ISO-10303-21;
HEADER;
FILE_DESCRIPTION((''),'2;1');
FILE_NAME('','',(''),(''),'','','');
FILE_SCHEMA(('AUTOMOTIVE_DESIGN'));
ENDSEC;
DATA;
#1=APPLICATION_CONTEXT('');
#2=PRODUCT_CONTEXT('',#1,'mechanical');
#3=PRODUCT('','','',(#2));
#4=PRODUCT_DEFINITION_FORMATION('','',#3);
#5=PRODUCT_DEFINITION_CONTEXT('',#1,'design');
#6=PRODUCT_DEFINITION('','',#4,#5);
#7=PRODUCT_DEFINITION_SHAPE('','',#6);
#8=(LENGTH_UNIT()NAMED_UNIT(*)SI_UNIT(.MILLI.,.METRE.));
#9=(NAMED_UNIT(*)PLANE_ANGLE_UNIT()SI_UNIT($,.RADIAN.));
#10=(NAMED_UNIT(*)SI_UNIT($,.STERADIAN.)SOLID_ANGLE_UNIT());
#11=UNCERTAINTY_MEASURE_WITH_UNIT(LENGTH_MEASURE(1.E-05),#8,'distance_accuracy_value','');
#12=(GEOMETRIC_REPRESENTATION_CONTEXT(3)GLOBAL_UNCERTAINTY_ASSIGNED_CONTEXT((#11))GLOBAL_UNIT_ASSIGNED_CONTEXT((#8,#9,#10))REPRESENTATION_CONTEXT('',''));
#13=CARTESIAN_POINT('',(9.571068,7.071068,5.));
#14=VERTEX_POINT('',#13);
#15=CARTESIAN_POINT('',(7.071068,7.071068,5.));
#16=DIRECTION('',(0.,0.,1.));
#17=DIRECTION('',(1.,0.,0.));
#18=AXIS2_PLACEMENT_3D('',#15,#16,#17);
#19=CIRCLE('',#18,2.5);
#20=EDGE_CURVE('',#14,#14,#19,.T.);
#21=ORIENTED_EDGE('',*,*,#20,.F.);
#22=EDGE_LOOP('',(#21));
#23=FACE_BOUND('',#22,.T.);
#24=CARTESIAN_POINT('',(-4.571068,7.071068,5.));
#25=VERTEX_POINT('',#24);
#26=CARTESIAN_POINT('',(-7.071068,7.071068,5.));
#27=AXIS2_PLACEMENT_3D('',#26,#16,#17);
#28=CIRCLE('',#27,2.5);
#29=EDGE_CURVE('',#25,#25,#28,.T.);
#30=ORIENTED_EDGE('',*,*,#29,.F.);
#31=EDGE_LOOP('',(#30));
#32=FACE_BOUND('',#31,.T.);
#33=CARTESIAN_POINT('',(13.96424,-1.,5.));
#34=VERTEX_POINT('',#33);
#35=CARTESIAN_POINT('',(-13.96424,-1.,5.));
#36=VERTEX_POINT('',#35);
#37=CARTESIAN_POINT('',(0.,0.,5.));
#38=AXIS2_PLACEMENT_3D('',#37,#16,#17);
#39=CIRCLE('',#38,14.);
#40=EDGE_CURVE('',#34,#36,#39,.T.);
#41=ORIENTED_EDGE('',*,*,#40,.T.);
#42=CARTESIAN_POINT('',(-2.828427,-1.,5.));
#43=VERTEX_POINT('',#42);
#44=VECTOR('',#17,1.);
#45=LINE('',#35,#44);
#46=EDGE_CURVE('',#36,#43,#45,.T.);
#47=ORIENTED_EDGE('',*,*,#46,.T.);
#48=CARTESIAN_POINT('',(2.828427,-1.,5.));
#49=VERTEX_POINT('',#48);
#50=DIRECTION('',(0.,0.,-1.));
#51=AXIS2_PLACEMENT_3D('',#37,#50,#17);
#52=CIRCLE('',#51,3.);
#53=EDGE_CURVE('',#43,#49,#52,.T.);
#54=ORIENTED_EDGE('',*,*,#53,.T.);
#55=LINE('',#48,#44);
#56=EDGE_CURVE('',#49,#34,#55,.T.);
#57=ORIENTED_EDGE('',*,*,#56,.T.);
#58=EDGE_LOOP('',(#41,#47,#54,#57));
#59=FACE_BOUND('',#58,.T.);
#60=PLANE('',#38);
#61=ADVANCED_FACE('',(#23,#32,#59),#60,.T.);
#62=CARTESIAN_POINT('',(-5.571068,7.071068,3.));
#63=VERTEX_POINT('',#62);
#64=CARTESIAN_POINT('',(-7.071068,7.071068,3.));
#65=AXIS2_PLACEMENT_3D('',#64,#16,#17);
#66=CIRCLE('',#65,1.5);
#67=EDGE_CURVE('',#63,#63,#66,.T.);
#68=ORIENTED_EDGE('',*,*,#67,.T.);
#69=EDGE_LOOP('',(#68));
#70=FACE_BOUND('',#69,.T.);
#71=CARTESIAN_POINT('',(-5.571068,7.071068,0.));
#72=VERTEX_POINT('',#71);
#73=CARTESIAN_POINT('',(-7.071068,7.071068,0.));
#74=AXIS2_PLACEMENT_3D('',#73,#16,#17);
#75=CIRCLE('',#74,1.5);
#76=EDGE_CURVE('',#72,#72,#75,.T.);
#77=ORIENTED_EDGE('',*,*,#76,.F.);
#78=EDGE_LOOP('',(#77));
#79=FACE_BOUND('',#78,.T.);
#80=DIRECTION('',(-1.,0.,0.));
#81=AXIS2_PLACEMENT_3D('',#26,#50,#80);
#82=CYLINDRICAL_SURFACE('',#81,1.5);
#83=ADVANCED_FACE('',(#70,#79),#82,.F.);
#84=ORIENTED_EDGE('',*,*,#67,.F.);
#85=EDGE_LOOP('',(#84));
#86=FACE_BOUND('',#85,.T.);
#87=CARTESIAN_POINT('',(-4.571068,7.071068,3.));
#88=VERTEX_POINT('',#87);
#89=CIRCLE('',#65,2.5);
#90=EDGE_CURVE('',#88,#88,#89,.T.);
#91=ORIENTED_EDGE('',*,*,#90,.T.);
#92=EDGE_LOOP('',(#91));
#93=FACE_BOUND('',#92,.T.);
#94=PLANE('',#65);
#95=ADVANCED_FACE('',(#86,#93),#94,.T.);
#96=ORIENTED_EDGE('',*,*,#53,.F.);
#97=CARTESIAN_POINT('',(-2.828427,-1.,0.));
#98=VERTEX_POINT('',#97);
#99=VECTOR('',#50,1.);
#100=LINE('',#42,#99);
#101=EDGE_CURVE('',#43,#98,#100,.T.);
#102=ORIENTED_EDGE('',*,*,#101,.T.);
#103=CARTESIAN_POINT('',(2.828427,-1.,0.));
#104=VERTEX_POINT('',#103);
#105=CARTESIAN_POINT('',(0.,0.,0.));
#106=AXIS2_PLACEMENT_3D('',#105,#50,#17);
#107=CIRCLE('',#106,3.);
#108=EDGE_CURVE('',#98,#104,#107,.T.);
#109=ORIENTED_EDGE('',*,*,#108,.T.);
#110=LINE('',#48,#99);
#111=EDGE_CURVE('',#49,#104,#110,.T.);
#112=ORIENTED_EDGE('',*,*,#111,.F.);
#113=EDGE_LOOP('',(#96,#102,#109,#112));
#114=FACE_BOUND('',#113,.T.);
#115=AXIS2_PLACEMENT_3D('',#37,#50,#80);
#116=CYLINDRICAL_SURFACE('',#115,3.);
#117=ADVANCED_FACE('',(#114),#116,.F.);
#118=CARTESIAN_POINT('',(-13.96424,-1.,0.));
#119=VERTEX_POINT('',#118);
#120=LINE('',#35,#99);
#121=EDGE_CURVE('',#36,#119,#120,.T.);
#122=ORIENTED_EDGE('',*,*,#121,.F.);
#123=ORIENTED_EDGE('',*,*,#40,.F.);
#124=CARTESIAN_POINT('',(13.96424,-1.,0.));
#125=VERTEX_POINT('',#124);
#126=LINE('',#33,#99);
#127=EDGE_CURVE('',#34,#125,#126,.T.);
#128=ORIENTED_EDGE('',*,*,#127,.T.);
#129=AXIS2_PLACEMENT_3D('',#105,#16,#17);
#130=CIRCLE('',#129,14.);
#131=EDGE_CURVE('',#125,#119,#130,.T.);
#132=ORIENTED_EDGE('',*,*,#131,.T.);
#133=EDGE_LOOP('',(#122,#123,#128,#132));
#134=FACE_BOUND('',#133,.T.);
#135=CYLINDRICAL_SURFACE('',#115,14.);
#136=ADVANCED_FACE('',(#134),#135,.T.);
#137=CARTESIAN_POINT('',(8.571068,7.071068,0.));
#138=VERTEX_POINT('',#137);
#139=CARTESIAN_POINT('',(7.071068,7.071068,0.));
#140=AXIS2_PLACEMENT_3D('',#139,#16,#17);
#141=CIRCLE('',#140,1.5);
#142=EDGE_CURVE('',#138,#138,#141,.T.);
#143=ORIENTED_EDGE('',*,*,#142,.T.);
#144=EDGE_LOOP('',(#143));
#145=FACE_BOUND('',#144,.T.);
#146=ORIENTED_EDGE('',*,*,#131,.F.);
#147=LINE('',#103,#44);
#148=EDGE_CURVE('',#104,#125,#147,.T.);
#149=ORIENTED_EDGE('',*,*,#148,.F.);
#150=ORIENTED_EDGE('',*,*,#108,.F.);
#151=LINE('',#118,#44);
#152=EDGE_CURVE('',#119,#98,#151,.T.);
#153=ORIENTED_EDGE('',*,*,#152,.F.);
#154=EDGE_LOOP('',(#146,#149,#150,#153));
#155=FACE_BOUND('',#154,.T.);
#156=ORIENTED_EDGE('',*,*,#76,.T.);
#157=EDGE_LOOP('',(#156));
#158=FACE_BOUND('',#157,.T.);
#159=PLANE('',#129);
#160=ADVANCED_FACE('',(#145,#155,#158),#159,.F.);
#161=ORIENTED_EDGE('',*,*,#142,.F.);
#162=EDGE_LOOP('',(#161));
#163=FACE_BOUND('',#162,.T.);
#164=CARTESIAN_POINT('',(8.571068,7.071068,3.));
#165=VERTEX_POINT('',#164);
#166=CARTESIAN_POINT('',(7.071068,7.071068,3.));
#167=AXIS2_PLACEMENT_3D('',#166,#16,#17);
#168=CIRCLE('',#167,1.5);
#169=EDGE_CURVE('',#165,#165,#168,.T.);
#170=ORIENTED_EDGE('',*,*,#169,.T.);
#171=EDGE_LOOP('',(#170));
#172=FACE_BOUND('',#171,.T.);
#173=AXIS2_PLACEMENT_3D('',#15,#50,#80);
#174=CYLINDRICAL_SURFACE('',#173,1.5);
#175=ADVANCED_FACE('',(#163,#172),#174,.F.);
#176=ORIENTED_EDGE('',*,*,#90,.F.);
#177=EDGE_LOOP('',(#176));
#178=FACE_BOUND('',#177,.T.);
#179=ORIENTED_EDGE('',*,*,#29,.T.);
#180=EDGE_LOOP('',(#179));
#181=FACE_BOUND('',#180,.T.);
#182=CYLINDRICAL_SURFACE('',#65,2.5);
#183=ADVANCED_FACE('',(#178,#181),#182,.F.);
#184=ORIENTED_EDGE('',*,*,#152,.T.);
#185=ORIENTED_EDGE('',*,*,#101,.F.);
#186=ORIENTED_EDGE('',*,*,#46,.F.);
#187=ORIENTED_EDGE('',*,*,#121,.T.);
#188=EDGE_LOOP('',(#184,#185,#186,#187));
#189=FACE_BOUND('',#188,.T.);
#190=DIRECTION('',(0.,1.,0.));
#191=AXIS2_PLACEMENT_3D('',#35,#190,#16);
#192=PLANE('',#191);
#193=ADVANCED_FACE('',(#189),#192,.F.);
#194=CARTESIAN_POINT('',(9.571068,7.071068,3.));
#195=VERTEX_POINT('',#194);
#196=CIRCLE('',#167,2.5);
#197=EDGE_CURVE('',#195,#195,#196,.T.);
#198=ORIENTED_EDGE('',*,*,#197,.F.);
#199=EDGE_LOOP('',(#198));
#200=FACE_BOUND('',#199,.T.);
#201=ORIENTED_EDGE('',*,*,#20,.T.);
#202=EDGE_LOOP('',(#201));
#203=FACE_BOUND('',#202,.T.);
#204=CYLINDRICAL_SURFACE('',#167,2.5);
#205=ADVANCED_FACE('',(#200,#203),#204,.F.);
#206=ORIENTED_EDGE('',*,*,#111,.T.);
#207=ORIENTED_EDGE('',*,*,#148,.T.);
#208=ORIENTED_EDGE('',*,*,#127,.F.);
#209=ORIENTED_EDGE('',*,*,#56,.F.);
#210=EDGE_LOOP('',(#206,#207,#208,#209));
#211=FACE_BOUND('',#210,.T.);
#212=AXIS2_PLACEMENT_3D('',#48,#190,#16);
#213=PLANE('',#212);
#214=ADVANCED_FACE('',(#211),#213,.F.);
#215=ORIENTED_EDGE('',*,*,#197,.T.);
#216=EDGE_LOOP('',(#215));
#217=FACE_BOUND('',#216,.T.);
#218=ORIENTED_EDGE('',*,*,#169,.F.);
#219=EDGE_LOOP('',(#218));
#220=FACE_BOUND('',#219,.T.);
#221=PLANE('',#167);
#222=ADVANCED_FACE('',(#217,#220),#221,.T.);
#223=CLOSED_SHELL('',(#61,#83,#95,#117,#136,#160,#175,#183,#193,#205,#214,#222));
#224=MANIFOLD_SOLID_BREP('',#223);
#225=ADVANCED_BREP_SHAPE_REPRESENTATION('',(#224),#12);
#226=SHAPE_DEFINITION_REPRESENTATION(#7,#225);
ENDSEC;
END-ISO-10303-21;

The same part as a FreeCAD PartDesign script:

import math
import FreeCAD as App
import Part
import Sketcher
from FreeCAD import Vector

doc = App.newDocument("Part")
params = doc.addObject("Spreadsheet::Sheet", "Params")
for row, (alias, value) in enumerate([
    ("sketch1_diameter", "3 mm"),
    ("sketch1_radius", "3 mm"),
    ("sketch1_radius2", "14 mm"),
    ("pad1_length", "5 mm"),
    ("sketch2_diameter", "5 mm"),
    ("pocket1_length", "2 mm"),
], start=1):
    params.set(f"A{row}", alias)
    params.set(f"B{row}", "=" + value)
    params.setAlias(f"B{row}", alias)

body = doc.addObject("PartDesign::Body", "Body")

# Sketch on XY plane
sketch1 = body.newObject("Sketcher::SketchObject", "Sketch")
sketch1.AttachmentSupport = (doc.getObject("XY_Plane"), [""])
sketch1.MapMode = "FlatFace"
sketch1.addGeometry([
    Part.LineSegment(Vector(-14, -1, 0), Vector(-2.8, -1, 0)),  # 0
    Part.ArcOfCircle(Part.Circle(Vector(0, 0, 0), Vector(0, 0, 1), 3), math.radians(-19), math.radians(199)),  # 1
    Part.LineSegment(Vector(2.8, -1, 0), Vector(14, -1, 0)),  # 2
    Part.ArcOfCircle(Part.Circle(Vector(0, 0, 0), Vector(0, 0, 1), 14), math.radians(-4), math.radians(184)),  # 3
    Part.Circle(Vector(-7.1, 7.1, 0), Vector(0, 0, 1), 1.5),  # 4
    Part.Circle(Vector(7.1, 7.1, 0), Vector(0, 0, 1), 1.5),  # 5
], False)
sketch1.addConstraint([
    Sketcher.Constraint("Coincident", 0, 2, 1, 2),
    Sketcher.Constraint("Coincident", 1, 1, 2, 1),
    Sketcher.Constraint("Coincident", 2, 2, 3, 1),
    Sketcher.Constraint("Coincident", 3, 2, 0, 1),
    Sketcher.Constraint("Horizontal", 0),
    Sketcher.Constraint("Horizontal", 2),
    Sketcher.Constraint("Coincident", 1, 3, -1, 1),
    Sketcher.Constraint("Coincident", 3, 3, -1, 1),
    Sketcher.Constraint("Equal", 4, 5),
    Sketcher.Constraint("Symmetric", 4, 3, 5, 3, -2),
    Sketcher.Constraint("Horizontal", 0, 2, 1, 1),
    Sketcher.Constraint("Diameter", 4, 3.0),
    Sketcher.Constraint("Radius", 1, 3.0),
    Sketcher.Constraint("Radius", 3, 14.0),
    Sketcher.Constraint("DistanceY", 0, 2, -1, 1, 1.0),
    Sketcher.Constraint("DistanceX", 4, 3, 0, 2, 4.242641),
    Sketcher.Constraint("DistanceY", -1, 1, 4, 3, 7.071068),
])
sketch1.setExpression("Constraints[11]", "Params.sketch1_diameter")
sketch1.setExpression("Constraints[12]", "Params.sketch1_radius")
sketch1.setExpression("Constraints[13]", "Params.sketch1_radius2")
pad1 = body.newObject("PartDesign::Pad", "Pad")
pad1.Profile = sketch1
pad1.setExpression("Length", "Params.pad1_length")

# Sketch on XY plane
sketch2 = body.newObject("Sketcher::SketchObject", "Sketch001")
sketch2.AttachmentSupport = (doc.getObject("XY_Plane"), [""])
sketch2.MapMode = "FlatFace"
sketch2.AttachmentOffset = App.Placement(Vector(0, 0, 5), App.Rotation())
sketch2.addGeometry([
    Part.Circle(Vector(-7.1, 7.1, 0), Vector(0, 0, 1), 2.5),
    Part.Circle(Vector(7.1, 7.1, 0), Vector(0, 0, 1), 2.5),
], False)
sketch2.addConstraint([
    Sketcher.Constraint("Equal", 0, 1),
    Sketcher.Constraint("Symmetric", 0, 3, 1, 3, -2),
    Sketcher.Constraint("Diameter", 0, 5.0),
    Sketcher.Constraint("DistanceX", 0, 3, -1, 1, 7.071068),
    Sketcher.Constraint("DistanceY", -1, 1, 0, 3, 7.071068),
])
sketch2.setExpression("Constraints[2]", "Params.sketch2_diameter")
pocket1 = body.newObject("PartDesign::Pocket", "Pocket")
pocket1.Profile = sketch2
pocket1.setExpression("Length", "Params.pocket1_length")

doc.recompute()
